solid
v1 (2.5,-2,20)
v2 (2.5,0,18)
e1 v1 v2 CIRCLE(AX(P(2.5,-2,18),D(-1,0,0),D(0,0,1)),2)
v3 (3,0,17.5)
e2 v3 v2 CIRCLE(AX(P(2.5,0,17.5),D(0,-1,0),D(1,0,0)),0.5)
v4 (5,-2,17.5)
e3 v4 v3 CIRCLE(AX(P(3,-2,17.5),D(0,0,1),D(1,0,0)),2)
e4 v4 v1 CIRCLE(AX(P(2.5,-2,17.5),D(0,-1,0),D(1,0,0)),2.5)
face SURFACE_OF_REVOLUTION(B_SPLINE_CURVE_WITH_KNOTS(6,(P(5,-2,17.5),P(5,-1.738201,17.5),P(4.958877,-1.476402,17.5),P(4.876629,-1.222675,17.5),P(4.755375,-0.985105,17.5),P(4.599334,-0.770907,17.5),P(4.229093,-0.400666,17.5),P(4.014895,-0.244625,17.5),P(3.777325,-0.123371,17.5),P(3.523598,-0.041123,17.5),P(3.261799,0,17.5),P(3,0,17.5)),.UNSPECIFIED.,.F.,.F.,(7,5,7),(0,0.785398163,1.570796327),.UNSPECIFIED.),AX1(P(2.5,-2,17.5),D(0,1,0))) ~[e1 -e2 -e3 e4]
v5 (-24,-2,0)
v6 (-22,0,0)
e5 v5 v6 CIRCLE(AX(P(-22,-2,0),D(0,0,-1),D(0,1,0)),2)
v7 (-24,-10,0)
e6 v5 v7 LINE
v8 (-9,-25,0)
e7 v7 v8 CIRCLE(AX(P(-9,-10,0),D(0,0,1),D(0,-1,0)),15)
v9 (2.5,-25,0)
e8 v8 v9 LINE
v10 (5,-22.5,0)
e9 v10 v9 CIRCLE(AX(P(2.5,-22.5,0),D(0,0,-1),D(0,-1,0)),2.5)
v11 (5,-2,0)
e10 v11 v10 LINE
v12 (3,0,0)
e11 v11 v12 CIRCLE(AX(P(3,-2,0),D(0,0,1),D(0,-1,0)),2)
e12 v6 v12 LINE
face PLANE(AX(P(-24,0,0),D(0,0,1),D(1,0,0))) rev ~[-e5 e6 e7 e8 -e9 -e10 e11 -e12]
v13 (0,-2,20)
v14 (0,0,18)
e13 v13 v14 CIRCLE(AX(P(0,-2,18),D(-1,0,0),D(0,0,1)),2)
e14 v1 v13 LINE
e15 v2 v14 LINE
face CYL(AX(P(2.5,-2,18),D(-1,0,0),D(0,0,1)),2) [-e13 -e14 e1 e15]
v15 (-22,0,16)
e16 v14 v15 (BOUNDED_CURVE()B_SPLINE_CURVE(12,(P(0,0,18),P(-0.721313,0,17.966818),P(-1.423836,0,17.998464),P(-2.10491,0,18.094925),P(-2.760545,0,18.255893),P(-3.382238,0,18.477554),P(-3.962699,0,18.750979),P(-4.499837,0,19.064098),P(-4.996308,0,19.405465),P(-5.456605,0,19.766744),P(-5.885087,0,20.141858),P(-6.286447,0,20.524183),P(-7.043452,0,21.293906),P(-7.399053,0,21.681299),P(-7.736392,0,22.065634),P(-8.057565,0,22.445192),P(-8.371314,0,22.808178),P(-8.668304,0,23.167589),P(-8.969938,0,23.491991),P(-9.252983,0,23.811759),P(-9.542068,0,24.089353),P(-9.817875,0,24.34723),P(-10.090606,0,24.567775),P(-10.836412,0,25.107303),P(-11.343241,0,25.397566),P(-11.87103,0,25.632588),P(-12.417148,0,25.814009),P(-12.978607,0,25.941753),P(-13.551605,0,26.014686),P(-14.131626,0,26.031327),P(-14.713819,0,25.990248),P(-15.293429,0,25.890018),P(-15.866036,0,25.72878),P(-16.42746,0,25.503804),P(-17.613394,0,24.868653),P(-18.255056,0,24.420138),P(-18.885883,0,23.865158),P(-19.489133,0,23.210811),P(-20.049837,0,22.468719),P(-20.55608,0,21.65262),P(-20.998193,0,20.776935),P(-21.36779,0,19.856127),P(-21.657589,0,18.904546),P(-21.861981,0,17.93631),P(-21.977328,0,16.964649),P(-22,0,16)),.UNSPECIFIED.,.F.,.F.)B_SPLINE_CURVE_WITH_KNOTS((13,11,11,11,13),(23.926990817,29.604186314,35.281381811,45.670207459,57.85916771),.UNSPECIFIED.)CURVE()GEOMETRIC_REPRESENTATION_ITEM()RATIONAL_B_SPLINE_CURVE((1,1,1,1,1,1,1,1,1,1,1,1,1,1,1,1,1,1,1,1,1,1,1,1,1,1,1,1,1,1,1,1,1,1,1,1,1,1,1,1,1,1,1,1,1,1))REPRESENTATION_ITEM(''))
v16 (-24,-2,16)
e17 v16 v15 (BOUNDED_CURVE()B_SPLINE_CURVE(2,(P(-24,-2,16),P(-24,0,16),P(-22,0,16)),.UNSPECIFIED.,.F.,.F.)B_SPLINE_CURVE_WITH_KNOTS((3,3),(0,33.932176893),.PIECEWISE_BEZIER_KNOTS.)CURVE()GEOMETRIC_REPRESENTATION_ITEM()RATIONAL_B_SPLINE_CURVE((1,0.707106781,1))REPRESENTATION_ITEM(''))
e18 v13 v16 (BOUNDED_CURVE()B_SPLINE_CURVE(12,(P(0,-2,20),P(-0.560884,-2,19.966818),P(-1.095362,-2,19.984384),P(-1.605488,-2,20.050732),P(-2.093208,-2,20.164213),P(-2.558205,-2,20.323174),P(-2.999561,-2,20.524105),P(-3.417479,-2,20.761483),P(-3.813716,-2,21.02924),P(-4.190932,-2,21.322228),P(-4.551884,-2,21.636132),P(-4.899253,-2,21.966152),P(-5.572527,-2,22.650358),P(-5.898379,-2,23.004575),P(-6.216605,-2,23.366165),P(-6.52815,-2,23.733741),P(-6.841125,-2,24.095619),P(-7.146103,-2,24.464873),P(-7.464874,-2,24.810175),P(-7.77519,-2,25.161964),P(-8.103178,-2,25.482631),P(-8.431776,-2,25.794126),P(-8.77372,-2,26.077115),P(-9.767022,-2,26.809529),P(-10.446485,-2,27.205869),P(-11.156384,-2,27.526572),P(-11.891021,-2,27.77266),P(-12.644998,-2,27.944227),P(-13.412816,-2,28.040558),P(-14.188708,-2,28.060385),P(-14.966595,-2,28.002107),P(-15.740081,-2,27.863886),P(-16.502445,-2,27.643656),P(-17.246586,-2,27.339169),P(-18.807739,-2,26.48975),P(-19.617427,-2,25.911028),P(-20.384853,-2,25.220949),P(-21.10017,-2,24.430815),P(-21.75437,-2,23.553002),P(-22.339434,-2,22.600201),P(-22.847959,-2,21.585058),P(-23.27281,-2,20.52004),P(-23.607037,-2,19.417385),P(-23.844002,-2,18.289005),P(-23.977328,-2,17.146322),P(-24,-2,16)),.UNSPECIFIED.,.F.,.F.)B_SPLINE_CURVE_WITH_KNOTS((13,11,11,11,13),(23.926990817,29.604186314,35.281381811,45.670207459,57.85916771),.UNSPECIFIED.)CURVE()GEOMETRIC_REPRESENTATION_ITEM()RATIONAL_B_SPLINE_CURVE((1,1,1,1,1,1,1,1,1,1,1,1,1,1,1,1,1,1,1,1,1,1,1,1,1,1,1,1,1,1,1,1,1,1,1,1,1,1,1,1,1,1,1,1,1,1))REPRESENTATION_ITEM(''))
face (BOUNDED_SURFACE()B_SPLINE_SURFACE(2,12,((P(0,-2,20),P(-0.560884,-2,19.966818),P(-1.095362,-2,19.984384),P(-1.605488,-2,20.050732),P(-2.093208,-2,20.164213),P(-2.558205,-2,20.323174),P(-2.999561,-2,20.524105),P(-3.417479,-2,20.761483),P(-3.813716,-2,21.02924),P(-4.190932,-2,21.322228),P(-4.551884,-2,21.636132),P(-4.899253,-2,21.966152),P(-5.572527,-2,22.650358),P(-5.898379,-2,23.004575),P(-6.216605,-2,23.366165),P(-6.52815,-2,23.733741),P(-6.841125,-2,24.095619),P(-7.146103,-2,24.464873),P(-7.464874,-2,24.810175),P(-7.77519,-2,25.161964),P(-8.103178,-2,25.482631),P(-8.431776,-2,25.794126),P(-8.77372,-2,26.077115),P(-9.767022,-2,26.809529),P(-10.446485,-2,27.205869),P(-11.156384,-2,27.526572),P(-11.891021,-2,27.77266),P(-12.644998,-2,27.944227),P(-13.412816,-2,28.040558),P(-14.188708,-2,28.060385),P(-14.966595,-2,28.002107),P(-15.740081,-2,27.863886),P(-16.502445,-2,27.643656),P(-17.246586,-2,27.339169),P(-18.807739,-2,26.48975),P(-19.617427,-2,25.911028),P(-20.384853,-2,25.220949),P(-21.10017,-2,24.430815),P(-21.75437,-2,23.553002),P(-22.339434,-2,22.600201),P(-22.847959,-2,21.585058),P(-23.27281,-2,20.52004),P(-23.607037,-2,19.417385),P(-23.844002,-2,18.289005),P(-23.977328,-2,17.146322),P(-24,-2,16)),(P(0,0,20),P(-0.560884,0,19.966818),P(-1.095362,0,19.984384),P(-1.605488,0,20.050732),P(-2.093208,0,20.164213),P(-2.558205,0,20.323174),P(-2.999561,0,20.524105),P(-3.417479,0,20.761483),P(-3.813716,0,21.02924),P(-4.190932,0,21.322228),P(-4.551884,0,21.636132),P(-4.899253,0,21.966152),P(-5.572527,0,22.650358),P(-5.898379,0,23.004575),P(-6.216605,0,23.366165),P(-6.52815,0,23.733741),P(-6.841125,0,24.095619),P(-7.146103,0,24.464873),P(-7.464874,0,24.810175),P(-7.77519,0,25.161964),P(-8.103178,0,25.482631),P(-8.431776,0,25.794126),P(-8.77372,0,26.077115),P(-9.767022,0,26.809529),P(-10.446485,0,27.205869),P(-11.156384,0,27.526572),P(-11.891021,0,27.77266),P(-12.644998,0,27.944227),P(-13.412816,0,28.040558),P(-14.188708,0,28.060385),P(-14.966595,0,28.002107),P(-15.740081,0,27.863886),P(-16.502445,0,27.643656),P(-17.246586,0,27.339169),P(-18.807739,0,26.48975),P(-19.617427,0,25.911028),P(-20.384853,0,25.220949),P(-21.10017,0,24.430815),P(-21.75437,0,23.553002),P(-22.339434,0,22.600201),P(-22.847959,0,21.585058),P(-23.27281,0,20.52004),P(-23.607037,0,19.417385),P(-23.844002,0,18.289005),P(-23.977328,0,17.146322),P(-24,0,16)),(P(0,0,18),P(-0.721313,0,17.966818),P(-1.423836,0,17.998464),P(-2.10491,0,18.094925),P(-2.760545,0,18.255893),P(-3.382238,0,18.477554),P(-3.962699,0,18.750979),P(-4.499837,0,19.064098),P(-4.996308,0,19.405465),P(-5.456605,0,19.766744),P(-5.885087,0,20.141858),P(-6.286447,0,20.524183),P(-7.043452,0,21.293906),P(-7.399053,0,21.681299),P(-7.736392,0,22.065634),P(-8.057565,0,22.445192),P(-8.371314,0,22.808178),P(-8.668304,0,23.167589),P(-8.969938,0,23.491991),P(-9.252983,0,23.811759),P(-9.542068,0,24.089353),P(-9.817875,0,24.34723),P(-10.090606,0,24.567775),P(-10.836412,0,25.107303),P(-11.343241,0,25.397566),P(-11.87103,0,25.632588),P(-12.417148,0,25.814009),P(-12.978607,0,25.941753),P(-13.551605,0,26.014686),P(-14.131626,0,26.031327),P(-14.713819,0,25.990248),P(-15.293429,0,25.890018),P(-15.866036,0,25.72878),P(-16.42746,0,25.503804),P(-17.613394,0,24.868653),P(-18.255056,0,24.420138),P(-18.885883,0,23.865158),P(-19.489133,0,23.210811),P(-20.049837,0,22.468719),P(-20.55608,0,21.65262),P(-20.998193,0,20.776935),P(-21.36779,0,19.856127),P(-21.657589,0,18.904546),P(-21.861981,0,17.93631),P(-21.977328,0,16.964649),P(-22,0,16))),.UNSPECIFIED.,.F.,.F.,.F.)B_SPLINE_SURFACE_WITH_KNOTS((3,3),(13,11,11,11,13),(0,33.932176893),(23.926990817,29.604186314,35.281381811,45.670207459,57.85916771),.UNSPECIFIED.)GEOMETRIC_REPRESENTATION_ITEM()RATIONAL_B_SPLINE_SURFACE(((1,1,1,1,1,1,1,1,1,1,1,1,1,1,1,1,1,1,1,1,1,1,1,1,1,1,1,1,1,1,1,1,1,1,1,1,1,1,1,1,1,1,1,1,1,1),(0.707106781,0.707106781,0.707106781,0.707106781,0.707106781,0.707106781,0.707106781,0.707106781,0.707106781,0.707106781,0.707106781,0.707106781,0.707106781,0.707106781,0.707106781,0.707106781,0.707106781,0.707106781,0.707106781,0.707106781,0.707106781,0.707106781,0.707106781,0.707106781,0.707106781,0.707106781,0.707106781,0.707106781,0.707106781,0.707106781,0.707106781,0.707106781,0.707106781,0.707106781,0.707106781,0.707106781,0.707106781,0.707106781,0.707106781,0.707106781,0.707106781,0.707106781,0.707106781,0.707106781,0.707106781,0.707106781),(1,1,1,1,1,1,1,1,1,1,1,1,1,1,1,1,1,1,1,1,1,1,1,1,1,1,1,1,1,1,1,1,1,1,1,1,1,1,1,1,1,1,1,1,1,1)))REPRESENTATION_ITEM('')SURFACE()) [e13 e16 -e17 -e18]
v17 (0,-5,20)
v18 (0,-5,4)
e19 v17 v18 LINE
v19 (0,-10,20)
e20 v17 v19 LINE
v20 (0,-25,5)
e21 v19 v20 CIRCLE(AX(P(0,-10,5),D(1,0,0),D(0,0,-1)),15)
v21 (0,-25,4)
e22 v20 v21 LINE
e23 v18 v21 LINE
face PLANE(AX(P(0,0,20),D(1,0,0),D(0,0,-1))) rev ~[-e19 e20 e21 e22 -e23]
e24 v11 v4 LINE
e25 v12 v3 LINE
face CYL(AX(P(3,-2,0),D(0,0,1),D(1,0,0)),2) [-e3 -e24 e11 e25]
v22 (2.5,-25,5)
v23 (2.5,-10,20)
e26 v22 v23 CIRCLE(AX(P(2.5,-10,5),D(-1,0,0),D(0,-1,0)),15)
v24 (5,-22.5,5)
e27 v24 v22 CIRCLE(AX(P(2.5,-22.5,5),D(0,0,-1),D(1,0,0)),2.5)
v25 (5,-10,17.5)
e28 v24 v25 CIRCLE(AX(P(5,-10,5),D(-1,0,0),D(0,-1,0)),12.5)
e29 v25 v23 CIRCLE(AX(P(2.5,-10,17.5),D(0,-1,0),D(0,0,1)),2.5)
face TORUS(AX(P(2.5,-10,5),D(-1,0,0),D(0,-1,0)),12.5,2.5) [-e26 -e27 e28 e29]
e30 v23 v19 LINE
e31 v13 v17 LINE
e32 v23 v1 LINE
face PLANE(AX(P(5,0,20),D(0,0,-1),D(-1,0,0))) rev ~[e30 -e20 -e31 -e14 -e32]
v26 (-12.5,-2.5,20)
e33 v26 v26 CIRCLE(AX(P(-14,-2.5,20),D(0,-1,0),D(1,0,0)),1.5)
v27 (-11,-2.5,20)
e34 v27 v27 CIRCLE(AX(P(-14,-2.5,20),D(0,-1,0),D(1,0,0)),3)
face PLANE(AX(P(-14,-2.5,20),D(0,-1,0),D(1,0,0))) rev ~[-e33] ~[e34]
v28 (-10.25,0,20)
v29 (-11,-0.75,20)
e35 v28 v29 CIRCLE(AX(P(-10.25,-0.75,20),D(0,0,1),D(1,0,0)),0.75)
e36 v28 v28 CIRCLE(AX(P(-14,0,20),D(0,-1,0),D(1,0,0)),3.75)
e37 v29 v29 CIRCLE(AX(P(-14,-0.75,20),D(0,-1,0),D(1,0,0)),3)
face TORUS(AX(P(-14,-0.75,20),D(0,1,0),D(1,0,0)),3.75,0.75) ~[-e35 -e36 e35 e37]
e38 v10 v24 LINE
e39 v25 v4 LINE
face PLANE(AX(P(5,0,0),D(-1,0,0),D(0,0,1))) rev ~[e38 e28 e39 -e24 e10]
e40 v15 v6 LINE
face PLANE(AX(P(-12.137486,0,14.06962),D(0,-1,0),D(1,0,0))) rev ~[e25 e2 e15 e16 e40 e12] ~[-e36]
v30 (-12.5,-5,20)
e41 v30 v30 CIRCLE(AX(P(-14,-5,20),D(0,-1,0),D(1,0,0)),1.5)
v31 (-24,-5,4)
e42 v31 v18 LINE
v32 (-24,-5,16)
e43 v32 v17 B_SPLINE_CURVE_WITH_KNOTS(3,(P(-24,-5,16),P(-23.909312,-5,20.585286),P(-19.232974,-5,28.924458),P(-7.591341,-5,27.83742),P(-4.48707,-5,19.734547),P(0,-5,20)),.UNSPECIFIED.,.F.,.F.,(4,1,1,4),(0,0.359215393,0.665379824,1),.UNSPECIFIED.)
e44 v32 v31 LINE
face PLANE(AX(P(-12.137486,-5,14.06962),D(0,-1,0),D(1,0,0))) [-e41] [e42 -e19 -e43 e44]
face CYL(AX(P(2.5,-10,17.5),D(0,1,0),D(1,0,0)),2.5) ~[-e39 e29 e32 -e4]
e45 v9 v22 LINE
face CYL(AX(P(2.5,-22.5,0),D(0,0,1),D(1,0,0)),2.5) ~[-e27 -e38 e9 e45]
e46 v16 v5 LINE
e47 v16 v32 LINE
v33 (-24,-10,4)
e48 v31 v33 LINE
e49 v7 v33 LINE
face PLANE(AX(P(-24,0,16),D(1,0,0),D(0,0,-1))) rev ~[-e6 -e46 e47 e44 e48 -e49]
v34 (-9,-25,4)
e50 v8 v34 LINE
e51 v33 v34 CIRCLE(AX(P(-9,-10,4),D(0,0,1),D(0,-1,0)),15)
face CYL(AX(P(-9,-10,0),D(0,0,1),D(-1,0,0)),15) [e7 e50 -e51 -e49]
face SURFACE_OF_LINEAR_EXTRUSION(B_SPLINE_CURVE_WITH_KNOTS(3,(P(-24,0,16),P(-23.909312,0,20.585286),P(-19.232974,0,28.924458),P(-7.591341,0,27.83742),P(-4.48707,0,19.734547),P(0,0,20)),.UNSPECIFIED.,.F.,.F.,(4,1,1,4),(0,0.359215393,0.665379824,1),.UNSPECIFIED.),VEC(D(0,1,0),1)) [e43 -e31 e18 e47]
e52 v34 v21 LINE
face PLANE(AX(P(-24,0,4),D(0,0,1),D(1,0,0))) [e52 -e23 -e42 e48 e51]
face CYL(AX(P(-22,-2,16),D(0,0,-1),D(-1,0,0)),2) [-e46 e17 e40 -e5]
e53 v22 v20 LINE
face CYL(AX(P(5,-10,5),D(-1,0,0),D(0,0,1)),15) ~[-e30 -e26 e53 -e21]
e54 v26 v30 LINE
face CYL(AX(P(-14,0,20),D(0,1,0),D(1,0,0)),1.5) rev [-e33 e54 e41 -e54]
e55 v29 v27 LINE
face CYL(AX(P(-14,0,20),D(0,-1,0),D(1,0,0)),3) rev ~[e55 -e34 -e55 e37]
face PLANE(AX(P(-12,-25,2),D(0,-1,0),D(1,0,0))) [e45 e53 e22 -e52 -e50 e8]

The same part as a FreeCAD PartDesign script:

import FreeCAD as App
import Part
import Sketcher

V = App.Vector
Q = App.Units.Quantity


def edges_at(feature, points):
    """Names of the edges that pass closest to the given points."""
    edges = feature.Shape.Edges
    near = lambda p: min(range(len(edges)), key=lambda i: edges[i].distToShape(Part.Vertex(*p))[0])
    return sorted({f"Edge{near(p) + 1}" for p in points})


def add_polygon(sketch, points):
    """Adds a closed chain of lines whose ends are joined by coincident constraints."""
    first, n = sketch.GeometryCount, len(points)
    for a, b in zip(points, points[1:] + points[:1]):
        sketch.addGeometry(Part.LineSegment(App.Vector(*a, 0), App.Vector(*b, 0)), False)
    for i in range(n):
        sketch.addConstraint(Sketcher.Constraint("Coincident", first + i, 2, first + (i + 1) % n, 1))

doc = App.newDocument("Part")
body = doc.addObject("PartDesign::Body", "Body")

sketch1 = doc.addObject("Sketcher::SketchObject", "Sketch")
body.addObject(sketch1)
sketch1.AttachmentSupport = (doc.XZ_Plane, [""])
sketch1.MapMode = "FlatFace"
add_polygon(sketch1, [(-24, 4), (-24, 0), (5, 0), (5, 20), (0, 20), (0, 4)])
sketch1.addConstraint(Sketcher.Constraint("Vertical", 0))
sketch1.addConstraint(Sketcher.Constraint("Horizontal", 1))
sketch1.addConstraint(Sketcher.Constraint("Vertical", 2))
sketch1.addConstraint(Sketcher.Constraint("Horizontal", 3))
sketch1.addConstraint(Sketcher.Constraint("Vertical", 4))
sketch1.addConstraint(Sketcher.Constraint("Horizontal", 5))
sketch1.addConstraint(Sketcher.Constraint("PointOnObject", 0, 2, -1))
sketch1.addConstraint(Sketcher.Constraint("PointOnObject", 3, 2, -2))
sketch1.addConstraint(Sketcher.Constraint("DistanceX", 1, 1, 1, 2, Q("29 mm")))
sketch1.addConstraint(Sketcher.Constraint("DistanceX", 3, 2, 3, 1, Q("5 mm")))
sketch1.addConstraint(Sketcher.Constraint("DistanceY", 0, 2, 0, 1, Q("4 mm")))
sketch1.addConstraint(Sketcher.Constraint("DistanceY", 2, 1, 2, 2, Q("20 mm")))
pad1 = doc.addObject("PartDesign::Pad", "Pad")
body.addObject(pad1)
pad1.Profile = sketch1
pad1.Length = 25

sketch2 = doc.addObject("Sketcher::SketchObject", "Sketch001")
body.addObject(sketch2)
sketch2.AttachmentSupport = (doc.XZ_Plane, [""])
sketch2.MapMode = "FlatFace"
sketch2.addGeometry(Part.LineSegment(V(-24, 16, 0), V(-24, 0, 0)), False)
sketch2.addGeometry(Part.LineSegment(V(-24, 0, 0), V(5, 0, 0)), False)
sketch2.addGeometry(Part.LineSegment(V(5, 0, 0), V(5, 20, 0)), False)
sketch2.addGeometry(Part.LineSegment(V(5, 20, 0), V(0, 20, 0)), False)
sketch2.addGeometry(Part.BSplineCurve([V(-24, 16, 0), V(-23.909312, 20.585286, 0), V(-19.232974, 28.924458, 0), V(-7.591341, 27.83742, 0), V(-4.48707, 19.734547, 0), V(0, 20, 0)], [4, 1, 1, 4], [0, 0.359215393, 0.665379824, 1], False, 3, [1, 1, 1, 1, 1, 1], False), False)
sketch2.addGeometry(Part.Circle(V(-14, 20, 0), V(0, 0, 1), 1.5), False)
sketch2.addConstraint(Sketcher.Constraint("Block", 4))
sketch2.addConstraint(Sketcher.Constraint("Coincident", 0, 2, 1, 1))
sketch2.addConstraint(Sketcher.Constraint("Coincident", 1, 2, 2, 1))
sketch2.addConstraint(Sketcher.Constraint("Coincident", 2, 2, 3, 1))
sketch2.addConstraint(Sketcher.Constraint("Coincident", 3, 2, 4, 2))
sketch2.addConstraint(Sketcher.Constraint("Coincident", 4, 1, 0, 1))
sketch2.addConstraint(Sketcher.Constraint("Vertical", 0))
sketch2.addConstraint(Sketcher.Constraint("Horizontal", 1))
sketch2.addConstraint(Sketcher.Constraint("Vertical", 2))
sketch2.addConstraint(Sketcher.Constraint("Horizontal", 3))
sketch2.addConstraint(Sketcher.Constraint("PointOnObject", 0, 2, -1))
sketch2.addConstraint(Sketcher.Constraint("Horizontal", 5, 3, 2, 2))
sketch2.addConstraint(Sketcher.Constraint("Diameter", 5, Q("3 mm")))
sketch2.addConstraint(Sketcher.Constraint("DistanceX", 1, 1, 1, 2, Q("29 mm")))
sketch2.addConstraint(Sketcher.Constraint("DistanceX", 5, 3, -1, 1, Q("14 mm")))
pad2 = doc.addObject("PartDesign::Pad", "Pad001")
body.addObject(pad2)
pad2.Profile = sketch2
pad2.Length = 5
doc.recompute()

fillet = doc.addObject("PartDesign::Fillet", "Fillet")
body.addObject(fillet)
fillet.Base = (pad2, edges_at(pad2, [(-24, -25, 2), (2.5, -25, 20)]))
fillet.Radius = 15
doc.recompute()

fillet2 = doc.addObject("PartDesign::Fillet", "Fillet001")
body.addObject(fillet2)
fillet2.Base = (fillet, edges_at(fillet, [(5, -5, 20)]))
fillet2.Radius = 2.5

sketch3 = doc.addObject("Sketcher::SketchObject", "Sketch002")
body.addObject(sketch3)
sketch3.AttachmentSupport = (doc.XZ_Plane, [""])
sketch3.MapMode = "FlatFace"
sketch3.addGeometry(Part.Circle(V(-14, 20, 0), V(0, 0, 1), 3), False)
sketch3.addGeometry(Part.Circle(V(-14, 20, 0), V(0, 0, 1), 1.5), False)
sketch3.addConstraint(Sketcher.Constraint("Coincident", 1, 3, 0, 3))
sketch3.addConstraint(Sketcher.Constraint("Diameter", 0, Q("6 mm")))
sketch3.addConstraint(Sketcher.Constraint("Diameter", 1, Q("3 mm")))
sketch3.addConstraint(Sketcher.Constraint("DistanceX", 0, 3, -1, 1, Q("14 mm")))
sketch3.addConstraint(Sketcher.Constraint("DistanceY", -1, 1, 0, 3, Q("20 mm")))
pocket1 = doc.addObject("PartDesign::Pocket", "Pocket")
body.addObject(pocket1)
pocket1.Profile = sketch3
pocket1.Length = 5
pocket1.Midplane = True
doc.recompute()

fillet3 = doc.addObject("PartDesign::Fillet", "Fillet002")
body.addObject(fillet3)
fillet3.Base = (pocket1, edges_at(pocket1, [
    (5, 0, 8.75),
    (4.268, 0, 19.268),
    (-24, 0, 8),
    (-14.212, 0, 27.946),
    (1.25, 0, 20),
]))
fillet3.Radius = 2
doc.recompute()

fillet4 = doc.addObject("PartDesign::Fillet", "Fillet003")
body.addObject(fillet4)
fillet4.Base = (fillet3, edges_at(fillet3, [(-17, 0, 20)]))
fillet4.Radius = 0.75

doc.recompute()
